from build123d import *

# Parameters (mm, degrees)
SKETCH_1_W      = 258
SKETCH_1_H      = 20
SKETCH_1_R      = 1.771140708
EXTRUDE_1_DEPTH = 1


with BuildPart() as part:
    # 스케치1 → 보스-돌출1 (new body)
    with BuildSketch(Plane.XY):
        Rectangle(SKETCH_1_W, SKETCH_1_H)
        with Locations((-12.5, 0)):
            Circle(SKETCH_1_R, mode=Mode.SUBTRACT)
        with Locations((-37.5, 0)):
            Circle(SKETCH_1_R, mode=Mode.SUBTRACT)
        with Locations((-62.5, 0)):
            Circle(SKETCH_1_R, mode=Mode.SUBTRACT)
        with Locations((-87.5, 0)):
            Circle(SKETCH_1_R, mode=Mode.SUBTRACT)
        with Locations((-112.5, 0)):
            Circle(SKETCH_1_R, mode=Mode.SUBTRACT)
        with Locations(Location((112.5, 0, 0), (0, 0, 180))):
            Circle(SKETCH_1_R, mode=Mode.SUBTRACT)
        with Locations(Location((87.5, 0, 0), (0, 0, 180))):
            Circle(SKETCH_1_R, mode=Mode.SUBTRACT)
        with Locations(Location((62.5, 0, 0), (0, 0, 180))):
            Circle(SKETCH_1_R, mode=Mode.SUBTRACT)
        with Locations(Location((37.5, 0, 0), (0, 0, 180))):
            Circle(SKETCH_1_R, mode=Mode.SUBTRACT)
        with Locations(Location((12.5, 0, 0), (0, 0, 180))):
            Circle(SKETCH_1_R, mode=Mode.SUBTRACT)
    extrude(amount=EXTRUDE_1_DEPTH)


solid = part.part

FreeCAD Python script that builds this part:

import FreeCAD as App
import Part
import Sketcher

V = App.Vector
Q = App.Units.Quantity

doc = App.newDocument("Part")
params = doc.addObject("Spreadsheet::Sheet", "Params")
for row, (alias, value) in enumerate([
    ("sketch1_width", "258 mm"),
    ("sketch1_height", "20 mm"),
    ("pad1_length", "1 mm"),
], start=1):
    params.set(f"A{row}", alias)
    params.set(f"B{row}", "=" + value)
    params.setAlias(f"B{row}", alias)

body = doc.addObject("PartDesign::Body", "Body")

# Sketch on XY plane
sketch1 = body.newObject("Sketcher::SketchObject", "Sketch")
sketch1.AttachmentSupport = (doc.getObject("XY_Plane"), [""])
sketch1.MapMode = "FlatFace"
sketch1.addGeometry([
    Part.LineSegment(V(-129, 10, 0), V(-129, -10, 0)),  # 0
    Part.LineSegment(V(-129, -10, 0), V(129, -10, 0)),  # 1
    Part.LineSegment(V(129, -10, 0), V(129, 10, 0)),  # 2
    Part.LineSegment(V(129, 10, 0), V(-129, 10, 0)),  # 3
    Part.Circle(V(-112.5, 0, 0), V(0, 0, 1), 1.771141),  # 4
    Part.Circle(V(-87.5, 0, 0), V(0, 0, 1), 1.771141),  # 5
    Part.Circle(V(-62.5, 0, 0), V(0, 0, 1), 1.771141),  # 6
    Part.Circle(V(-37.5, 0, 0), V(0, 0, 1), 1.771141),  # 7
    Part.Circle(V(-12.5, 0, 0), V(0, 0, 1), 1.771141),  # 8
    Part.Circle(V(12.5, 0, 0), V(0, 0, 1), 1.771141),  # 9
    Part.Circle(V(37.5, 0, 0), V(0, 0, 1), 1.771141),  # 10
    Part.Circle(V(62.5, 0, 0), V(0, 0, 1), 1.771141),  # 11
    Part.Circle(V(87.5, 0, 0), V(0, 0, 1), 1.771141),  # 12
    Part.Circle(V(112.5, 0, 0), V(0, 0, 1), 1.771141),  # 13
], False)
sketch1.addConstraint([
    Sketcher.Constraint("Coincident", 0, 2, 1, 1),
    Sketcher.Constraint("Coincident", 1, 2, 2, 1),
    Sketcher.Constraint("Coincident", 2, 2, 3, 1),
    Sketcher.Constraint("Coincident", 3, 2, 0, 1),
    Sketcher.Constraint("Vertical", 0),
    Sketcher.Constraint("Horizontal", 1),
    Sketcher.Constraint("Vertical", 2),
    Sketcher.Constraint("Horizontal", 3),
    Sketcher.Constraint("Equal", 4, 5),
    Sketcher.Constraint("Equal", 5, 6),
    Sketcher.Constraint("Equal", 6, 7),
    Sketcher.Constraint("Equal", 7, 8),
    Sketcher.Constraint("Equal", 8, 9),
    Sketcher.Constraint("Equal", 9, 10),
    Sketcher.Constraint("Equal", 10, 11),
    Sketcher.Constraint("Equal", 11, 12),
    Sketcher.Constraint("Equal", 12, 13),
    Sketcher.Constraint("Symmetric", 8, 3, 9, 3, -1, 1),
    Sketcher.Constraint("Symmetric", 7, 3, 10, 3, -1, 1),
    Sketcher.Constraint("Symmetric", 6, 3, 11, 3, -1, 1),
    Sketcher.Constraint("Symmetric", 5, 3, 12, 3, -1, 1),
    Sketcher.Constraint("Symmetric", 4, 3, 13, 3, -1, 1),
    Sketcher.Constraint("Symmetric", 0, 2, 2, 2, -1, 1),
    Sketcher.Constraint("PointOnObject", 4, 3, -1),
    Sketcher.Constraint("PointOnObject", 5, 3, -1),
    Sketcher.Constraint("PointOnObject", 6, 3, -1),
    Sketcher.Constraint("PointOnObject", 7, 3, -1),
    Sketcher.Constraint("PointOnObject", 8, 3, -1),
    Sketcher.Constraint("DistanceX", 1, 1, 1, 2, Q("258 mm")),
    Sketcher.Constraint("DistanceY", 0, 2, 0, 1, Q("20 mm")),
    Sketcher.Constraint("DistanceX", 4, 3, 5, 3, Q("25 mm")),
    Sketcher.Constraint("DistanceX", 5, 3, 6, 3, Q("25 mm")),
    Sketcher.Constraint("DistanceX", 6, 3, 7, 3, Q("25 mm")),
    Sketcher.Constraint("DistanceX", 7, 3, 8, 3, Q("25 mm")),
    Sketcher.Constraint("DistanceX", 8, 3, 9, 3, Q("25 mm")),
    Sketcher.Constraint("Diameter", 4, Q("3.542281 mm")),
])
sketch1.setExpression("Constraints[28]", "Params.sketch1_width")
sketch1.setExpression("Constraints[29]", "Params.sketch1_height")
pad1 = body.newObject("PartDesign::Pad", "Pad")
pad1.Profile = sketch1
pad1.setExpression("Length", "Params.pad1_length")

doc.recompute()
